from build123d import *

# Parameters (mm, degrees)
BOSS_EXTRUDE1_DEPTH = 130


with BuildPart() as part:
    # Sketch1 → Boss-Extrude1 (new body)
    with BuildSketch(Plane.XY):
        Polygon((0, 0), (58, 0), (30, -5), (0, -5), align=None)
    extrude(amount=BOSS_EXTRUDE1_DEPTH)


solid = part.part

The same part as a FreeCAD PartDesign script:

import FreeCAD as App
import Part
import Sketcher
Q = App.Units.Quantity

doc = App.newDocument("Part")
body = doc.addObject("PartDesign::Body", "Body")

sketch1 = body.newObject("Sketcher::SketchObject", "Sketch")
sketch1.AttachmentSupport = (doc.getObject("XY_Plane"), [""])
sketch1.MapMode = "FlatFace"
sketch1.addGeometry(Part.LineSegment(App.Vector(58, 0, 0), App.Vector(0, 0, 0)), False)
sketch1.addGeometry(Part.LineSegment(App.Vector(0, 0, 0), App.Vector(0, -5, 0)), False)
sketch1.addGeometry(Part.LineSegment(App.Vector(0, -5, 0), App.Vector(30, -5, 0)), False)
sketch1.addGeometry(Part.LineSegment(App.Vector(30, -5, 0), App.Vector(58, 0, 0)), False)
sketch1.addConstraint(Sketcher.Constraint("Coincident", 0, 2, 1, 1))
sketch1.addConstraint(Sketcher.Constraint("Coincident", 1, 2, 2, 1))
sketch1.addConstraint(Sketcher.Constraint("Coincident", 2, 2, 3, 1))
sketch1.addConstraint(Sketcher.Constraint("Coincident", 3, 2, 0, 1))
sketch1.addConstraint(Sketcher.Constraint("Horizontal", 0))
sketch1.addConstraint(Sketcher.Constraint("Vertical", 1))
sketch1.addConstraint(Sketcher.Constraint("Horizontal", 2))
sketch1.addConstraint(Sketcher.Constraint("Coincident", 0, 2, -1, 1))
sketch1.addConstraint(Sketcher.Constraint("DistanceX", 0, 2, 0, 1, Q("58 mm")))
sketch1.addConstraint(Sketcher.Constraint("DistanceX", 2, 1, 2, 2, Q("30 mm")))
sketch1.addConstraint(Sketcher.Constraint("DistanceY", 1, 2, 1, 1, Q("5 mm")))
pad1 = body.newObject("PartDesign::Pad", "Pad")
pad1.Profile = sketch1
pad1.Length = 130

doc.recompute()
